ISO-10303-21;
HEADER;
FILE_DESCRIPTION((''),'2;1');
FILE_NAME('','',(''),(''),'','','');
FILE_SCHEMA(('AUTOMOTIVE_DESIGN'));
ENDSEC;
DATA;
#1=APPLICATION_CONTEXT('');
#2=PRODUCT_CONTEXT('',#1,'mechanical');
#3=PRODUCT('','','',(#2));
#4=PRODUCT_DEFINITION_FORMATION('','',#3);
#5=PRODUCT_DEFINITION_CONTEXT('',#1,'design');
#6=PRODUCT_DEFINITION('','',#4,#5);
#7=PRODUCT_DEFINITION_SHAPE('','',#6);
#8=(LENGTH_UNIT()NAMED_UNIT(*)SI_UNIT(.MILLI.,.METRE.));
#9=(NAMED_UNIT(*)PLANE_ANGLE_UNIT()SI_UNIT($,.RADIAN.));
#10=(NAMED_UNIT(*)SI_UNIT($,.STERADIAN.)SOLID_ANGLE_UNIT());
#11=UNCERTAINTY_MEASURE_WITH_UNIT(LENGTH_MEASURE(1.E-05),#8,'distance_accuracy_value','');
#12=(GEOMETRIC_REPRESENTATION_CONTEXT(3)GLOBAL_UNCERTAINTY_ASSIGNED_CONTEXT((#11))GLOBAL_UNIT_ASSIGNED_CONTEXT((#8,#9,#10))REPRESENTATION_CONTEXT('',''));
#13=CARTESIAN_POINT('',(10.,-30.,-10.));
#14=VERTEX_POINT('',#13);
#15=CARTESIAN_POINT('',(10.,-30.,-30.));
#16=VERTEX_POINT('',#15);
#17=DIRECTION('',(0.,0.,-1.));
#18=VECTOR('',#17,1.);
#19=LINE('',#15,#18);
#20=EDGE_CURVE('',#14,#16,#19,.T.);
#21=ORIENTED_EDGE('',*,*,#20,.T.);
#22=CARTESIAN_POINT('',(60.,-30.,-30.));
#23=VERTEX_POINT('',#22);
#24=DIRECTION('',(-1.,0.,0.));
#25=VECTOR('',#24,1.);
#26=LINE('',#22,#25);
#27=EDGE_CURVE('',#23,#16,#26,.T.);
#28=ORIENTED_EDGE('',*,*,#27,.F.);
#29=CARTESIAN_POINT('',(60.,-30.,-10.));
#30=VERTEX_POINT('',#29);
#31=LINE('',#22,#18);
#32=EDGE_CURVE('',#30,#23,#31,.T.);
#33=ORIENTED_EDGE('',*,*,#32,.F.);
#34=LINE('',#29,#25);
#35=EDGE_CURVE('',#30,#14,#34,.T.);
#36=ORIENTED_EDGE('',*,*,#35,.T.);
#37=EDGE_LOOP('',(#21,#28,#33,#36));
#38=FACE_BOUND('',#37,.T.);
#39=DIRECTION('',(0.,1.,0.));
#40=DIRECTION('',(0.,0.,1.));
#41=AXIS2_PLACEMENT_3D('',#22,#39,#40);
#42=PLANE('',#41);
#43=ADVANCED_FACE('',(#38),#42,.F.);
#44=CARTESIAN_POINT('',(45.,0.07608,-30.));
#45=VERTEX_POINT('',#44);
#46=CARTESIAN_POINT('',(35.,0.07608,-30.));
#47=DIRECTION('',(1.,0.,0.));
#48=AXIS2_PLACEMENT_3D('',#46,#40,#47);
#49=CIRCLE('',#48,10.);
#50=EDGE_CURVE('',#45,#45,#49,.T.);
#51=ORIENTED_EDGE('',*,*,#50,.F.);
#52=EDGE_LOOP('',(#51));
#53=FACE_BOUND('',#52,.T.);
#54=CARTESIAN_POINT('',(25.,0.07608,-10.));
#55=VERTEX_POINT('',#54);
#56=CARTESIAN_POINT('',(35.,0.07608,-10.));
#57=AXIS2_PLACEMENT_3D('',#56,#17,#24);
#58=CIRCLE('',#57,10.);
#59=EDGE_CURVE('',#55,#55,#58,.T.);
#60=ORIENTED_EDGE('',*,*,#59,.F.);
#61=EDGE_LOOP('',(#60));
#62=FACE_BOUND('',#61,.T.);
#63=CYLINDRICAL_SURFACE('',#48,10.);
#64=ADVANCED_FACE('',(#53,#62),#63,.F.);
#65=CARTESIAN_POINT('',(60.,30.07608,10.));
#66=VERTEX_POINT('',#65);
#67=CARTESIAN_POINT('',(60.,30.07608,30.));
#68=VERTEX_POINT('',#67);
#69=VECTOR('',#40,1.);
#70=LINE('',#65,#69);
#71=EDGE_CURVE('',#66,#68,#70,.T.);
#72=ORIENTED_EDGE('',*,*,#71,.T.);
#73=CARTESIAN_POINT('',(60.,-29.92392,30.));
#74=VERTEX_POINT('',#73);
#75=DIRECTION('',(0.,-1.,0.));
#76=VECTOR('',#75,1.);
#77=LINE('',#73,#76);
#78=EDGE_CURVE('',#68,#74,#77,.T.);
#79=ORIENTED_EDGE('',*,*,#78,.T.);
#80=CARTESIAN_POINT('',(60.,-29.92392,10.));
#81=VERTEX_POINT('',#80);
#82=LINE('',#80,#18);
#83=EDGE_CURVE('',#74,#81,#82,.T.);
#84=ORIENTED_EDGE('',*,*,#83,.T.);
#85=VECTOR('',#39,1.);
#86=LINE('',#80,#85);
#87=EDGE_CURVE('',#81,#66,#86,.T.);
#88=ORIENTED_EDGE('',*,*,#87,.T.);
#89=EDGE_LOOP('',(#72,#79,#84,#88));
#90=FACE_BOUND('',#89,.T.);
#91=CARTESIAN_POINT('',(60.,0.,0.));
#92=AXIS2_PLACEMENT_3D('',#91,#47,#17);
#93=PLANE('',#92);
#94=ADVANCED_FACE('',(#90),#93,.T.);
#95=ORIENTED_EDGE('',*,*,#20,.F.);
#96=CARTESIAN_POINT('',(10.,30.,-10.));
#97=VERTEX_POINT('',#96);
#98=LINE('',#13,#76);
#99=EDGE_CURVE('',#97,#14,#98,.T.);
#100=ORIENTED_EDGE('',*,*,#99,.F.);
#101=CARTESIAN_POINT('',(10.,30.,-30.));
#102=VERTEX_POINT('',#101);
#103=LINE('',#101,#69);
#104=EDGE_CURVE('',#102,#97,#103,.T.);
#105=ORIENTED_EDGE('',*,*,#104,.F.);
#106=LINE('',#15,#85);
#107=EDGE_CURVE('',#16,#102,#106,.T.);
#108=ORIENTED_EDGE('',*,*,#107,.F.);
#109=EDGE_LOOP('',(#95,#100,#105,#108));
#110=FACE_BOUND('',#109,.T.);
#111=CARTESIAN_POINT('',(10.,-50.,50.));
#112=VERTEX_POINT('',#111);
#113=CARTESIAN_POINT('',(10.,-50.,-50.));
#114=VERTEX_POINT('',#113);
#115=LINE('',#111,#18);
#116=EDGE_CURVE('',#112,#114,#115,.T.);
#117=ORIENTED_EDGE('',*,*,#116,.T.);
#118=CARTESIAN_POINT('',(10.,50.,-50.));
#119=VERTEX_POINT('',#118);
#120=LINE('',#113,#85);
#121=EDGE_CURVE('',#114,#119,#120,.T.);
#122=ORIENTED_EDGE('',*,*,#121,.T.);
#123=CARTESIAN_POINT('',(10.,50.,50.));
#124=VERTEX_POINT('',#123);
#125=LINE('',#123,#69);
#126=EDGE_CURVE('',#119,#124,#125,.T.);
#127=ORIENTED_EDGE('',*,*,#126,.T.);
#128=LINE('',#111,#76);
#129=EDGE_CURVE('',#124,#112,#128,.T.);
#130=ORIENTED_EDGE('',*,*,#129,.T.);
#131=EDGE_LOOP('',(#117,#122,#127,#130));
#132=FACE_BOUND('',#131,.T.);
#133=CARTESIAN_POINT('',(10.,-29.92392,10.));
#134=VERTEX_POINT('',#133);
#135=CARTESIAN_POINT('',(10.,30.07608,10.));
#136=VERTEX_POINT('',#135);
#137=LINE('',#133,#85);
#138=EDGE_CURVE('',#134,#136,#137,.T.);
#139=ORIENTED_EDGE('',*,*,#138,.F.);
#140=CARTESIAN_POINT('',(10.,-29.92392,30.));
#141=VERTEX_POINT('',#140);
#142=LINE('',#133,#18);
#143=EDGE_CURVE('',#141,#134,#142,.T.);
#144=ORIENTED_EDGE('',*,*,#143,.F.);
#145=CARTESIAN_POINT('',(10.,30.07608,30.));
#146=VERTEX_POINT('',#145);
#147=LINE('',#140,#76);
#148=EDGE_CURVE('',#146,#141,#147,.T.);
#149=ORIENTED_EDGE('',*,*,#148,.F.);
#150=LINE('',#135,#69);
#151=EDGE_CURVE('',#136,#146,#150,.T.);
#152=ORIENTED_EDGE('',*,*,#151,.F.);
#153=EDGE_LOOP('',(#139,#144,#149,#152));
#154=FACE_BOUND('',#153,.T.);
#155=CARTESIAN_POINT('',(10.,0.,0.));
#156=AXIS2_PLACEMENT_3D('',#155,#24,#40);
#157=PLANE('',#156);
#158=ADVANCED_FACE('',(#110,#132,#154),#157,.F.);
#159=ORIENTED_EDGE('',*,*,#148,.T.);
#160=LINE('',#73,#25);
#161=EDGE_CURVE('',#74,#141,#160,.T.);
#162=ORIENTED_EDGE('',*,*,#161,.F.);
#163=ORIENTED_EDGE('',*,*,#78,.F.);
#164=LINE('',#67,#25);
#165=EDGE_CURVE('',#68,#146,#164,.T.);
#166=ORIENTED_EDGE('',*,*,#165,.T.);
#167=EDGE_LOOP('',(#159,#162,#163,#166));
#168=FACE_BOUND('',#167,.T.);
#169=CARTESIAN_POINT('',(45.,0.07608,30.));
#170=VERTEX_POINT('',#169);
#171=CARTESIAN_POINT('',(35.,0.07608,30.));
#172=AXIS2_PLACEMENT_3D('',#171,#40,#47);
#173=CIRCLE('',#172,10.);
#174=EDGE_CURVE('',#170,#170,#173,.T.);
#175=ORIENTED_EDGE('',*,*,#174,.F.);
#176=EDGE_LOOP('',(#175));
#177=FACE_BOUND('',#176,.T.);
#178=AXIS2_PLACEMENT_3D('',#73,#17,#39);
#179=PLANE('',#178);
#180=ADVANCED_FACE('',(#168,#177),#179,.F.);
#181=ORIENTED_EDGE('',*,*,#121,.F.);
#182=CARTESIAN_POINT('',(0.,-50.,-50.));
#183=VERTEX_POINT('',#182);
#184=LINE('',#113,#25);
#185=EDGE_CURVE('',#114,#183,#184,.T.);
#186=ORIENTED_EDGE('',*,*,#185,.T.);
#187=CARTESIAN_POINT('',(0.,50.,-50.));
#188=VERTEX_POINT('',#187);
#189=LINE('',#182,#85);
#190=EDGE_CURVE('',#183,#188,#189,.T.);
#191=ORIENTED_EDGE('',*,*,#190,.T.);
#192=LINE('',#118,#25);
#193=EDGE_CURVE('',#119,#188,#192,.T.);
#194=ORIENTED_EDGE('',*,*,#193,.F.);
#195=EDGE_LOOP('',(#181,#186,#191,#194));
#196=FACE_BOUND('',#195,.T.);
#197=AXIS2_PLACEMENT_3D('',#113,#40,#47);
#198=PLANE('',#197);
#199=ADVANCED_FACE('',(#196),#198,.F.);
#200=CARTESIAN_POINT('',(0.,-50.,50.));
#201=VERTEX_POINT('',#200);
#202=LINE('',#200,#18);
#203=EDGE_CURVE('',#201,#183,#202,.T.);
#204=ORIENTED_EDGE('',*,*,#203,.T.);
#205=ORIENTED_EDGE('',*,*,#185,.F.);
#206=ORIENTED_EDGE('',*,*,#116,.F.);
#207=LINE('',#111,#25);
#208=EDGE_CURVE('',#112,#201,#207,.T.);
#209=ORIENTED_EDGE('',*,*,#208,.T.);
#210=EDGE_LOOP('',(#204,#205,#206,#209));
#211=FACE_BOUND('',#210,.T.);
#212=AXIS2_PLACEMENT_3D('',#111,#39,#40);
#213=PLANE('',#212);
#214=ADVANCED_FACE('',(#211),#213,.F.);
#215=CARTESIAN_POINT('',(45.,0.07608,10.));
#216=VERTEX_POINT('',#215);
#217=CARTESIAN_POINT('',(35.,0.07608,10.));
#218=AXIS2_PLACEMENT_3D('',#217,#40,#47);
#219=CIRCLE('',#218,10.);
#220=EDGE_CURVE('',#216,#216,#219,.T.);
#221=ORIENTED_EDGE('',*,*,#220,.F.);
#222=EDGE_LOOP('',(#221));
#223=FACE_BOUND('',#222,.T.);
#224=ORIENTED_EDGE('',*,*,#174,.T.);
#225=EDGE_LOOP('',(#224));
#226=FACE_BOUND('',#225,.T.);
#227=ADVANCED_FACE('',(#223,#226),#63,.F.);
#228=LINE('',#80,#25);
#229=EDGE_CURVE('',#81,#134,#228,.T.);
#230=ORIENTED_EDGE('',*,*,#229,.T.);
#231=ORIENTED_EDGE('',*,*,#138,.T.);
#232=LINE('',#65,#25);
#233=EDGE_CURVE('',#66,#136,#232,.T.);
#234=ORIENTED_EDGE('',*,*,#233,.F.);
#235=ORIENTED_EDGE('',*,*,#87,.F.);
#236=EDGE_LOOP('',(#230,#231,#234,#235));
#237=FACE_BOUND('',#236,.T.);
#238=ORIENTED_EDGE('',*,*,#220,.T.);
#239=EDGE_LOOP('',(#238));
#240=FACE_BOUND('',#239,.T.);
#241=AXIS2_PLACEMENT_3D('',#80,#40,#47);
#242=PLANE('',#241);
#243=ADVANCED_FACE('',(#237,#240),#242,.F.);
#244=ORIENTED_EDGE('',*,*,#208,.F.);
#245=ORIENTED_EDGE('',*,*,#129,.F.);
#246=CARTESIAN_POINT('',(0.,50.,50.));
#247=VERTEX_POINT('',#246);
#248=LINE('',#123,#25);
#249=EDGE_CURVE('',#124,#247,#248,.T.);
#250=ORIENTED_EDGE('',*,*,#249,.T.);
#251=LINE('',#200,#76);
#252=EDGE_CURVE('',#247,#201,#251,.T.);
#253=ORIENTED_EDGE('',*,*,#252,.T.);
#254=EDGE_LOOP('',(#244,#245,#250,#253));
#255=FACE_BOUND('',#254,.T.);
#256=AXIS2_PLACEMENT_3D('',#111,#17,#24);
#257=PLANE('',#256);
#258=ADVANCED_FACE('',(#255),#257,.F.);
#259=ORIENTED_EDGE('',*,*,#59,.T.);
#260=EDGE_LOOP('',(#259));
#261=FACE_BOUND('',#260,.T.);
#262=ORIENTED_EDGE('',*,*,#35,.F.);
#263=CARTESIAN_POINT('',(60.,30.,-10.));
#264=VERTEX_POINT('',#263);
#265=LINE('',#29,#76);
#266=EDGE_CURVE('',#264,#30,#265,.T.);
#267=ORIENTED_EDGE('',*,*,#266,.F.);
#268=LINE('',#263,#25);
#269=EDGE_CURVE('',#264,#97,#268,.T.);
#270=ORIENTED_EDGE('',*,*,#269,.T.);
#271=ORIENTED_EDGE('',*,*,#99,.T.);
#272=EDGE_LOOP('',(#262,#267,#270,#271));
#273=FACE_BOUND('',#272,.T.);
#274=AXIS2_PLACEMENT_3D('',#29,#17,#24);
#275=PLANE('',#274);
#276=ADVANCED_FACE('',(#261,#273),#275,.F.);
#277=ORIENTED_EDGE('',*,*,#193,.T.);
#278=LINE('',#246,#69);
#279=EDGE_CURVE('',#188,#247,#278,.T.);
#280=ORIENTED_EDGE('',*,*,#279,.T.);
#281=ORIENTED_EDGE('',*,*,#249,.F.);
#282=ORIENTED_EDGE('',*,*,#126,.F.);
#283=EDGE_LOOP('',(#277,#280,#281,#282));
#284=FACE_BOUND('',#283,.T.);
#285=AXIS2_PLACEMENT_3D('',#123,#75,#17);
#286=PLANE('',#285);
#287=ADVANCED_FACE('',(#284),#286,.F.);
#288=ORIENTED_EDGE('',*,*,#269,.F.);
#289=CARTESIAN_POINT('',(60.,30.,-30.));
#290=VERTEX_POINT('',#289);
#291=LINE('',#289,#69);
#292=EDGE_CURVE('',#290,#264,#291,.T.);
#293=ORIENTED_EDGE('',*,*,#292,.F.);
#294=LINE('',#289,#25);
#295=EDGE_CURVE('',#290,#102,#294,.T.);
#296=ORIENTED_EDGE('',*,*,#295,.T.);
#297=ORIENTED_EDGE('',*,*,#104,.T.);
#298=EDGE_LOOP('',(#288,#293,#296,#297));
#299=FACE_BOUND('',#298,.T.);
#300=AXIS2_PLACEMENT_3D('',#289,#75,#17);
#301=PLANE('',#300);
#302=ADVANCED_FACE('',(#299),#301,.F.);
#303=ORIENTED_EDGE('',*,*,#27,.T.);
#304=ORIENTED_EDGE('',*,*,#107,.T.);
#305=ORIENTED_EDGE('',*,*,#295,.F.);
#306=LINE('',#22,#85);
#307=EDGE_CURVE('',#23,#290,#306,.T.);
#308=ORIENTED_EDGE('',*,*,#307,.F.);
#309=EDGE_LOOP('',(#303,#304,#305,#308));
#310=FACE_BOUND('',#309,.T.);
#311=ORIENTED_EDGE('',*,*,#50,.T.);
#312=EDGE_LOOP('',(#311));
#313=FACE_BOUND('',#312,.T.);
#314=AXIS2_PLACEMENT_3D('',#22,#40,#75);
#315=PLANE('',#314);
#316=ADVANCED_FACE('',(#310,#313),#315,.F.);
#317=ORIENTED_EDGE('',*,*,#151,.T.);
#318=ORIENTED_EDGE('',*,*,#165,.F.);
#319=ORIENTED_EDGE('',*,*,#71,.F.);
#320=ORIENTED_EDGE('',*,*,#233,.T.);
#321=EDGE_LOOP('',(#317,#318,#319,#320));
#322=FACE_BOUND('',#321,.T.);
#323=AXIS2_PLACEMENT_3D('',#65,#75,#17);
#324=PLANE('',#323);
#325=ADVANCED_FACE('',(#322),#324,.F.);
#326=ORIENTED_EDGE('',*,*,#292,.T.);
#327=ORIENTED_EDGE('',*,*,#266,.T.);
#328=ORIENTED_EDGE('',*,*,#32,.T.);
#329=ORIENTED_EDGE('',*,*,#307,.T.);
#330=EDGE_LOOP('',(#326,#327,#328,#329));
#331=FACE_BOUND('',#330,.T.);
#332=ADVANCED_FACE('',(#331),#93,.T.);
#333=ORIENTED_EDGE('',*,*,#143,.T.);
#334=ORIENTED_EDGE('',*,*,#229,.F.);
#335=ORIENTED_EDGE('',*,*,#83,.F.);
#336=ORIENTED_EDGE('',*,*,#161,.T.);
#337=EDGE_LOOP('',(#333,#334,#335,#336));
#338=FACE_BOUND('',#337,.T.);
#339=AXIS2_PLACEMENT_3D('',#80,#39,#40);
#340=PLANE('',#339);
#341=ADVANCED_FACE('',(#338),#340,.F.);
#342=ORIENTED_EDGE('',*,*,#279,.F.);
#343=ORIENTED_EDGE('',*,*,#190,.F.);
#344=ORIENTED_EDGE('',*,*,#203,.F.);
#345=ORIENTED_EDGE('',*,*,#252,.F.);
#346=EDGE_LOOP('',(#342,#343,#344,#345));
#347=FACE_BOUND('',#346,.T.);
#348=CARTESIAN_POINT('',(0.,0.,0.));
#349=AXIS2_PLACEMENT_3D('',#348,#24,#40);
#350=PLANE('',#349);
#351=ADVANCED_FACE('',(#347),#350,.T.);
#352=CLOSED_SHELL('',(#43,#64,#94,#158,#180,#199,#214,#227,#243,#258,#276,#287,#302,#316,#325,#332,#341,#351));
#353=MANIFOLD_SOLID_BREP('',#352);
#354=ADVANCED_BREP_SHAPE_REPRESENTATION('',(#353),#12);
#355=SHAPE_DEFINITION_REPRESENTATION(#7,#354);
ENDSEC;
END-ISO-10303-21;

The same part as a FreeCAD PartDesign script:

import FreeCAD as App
import Part
import Sketcher
from FreeCAD import Vector


def add_polygon(sketch, points):
    """Adds a closed chain of lines whose ends are joined by coincident constraints."""
    first, n = sketch.GeometryCount, len(points)
    for a, b in zip(points, points[1:] + points[:1]):
        sketch.addGeometry(Part.LineSegment(App.Vector(*a, 0), App.Vector(*b, 0)), False)
    for i in range(n):
        sketch.addConstraint(Sketcher.Constraint("Coincident", first + i, 2, first + (i + 1) % n, 1))

doc = App.newDocument("Part")
body = doc.addObject("PartDesign::Body", "Body")

# Sketch on YZ plane
sketch1 = body.newObject("Sketcher::SketchObject", "Sketch")
sketch1.AttachmentSupport = (doc.getObject("YZ_Plane"), [""])
sketch1.MapMode = "FlatFace"
add_polygon(sketch1, [(50, 50), (-50, 50), (-50, -50), (50, -50)])  # lines 0-3
sketch1.addConstraint(Sketcher.Constraint("Horizontal", 0))
sketch1.addConstraint(Sketcher.Constraint("Vertical", 1))
sketch1.addConstraint(Sketcher.Constraint("Horizontal", 2))
sketch1.addConstraint(Sketcher.Constraint("Vertical", 3))
sketch1.addConstraint(Sketcher.Constraint("Symmetric", 0, 2, 2, 2, -1, 1))
sketch1.addConstraint(Sketcher.Constraint("Equal", 2, 1))
sketch1.addConstraint(Sketcher.Constraint("DistanceX", 0, 2, 0, 1, 100.0))
pad1 = body.newObject("PartDesign::Pad", "Pad")
pad1.Profile = sketch1
pad1.Length = 10

# Sketch on YZ plane
sketch2 = body.newObject("Sketcher::SketchObject", "Sketch001")
sketch2.AttachmentSupport = (doc.getObject("YZ_Plane"), [""])
sketch2.MapMode = "FlatFace"
sketch2.AttachmentOffset = App.Placement(Vector(0, 0, 10), App.Rotation())
add_polygon(sketch2, [(30.07608, 30), (-29.92392, 30), (-29.92392, 10), (30.07608, 10)])  # lines 0-3
add_polygon(sketch2, [(30, -10), (-30, -10), (-30, -30), (30, -30)])  # lines 4-7
sketch2.addConstraint(Sketcher.Constraint("Horizontal", 0))
sketch2.addConstraint(Sketcher.Constraint("Vertical", 1))
sketch2.addConstraint(Sketcher.Constraint("Horizontal", 2))
sketch2.addConstraint(Sketcher.Constraint("Vertical", 3))
sketch2.addConstraint(Sketcher.Constraint("Horizontal", 4))
sketch2.addConstraint(Sketcher.Constraint("Vertical", 5))
sketch2.addConstraint(Sketcher.Constraint("Horizontal", 6))
sketch2.addConstraint(Sketcher.Constraint("Vertical", 7))
sketch2.addConstraint(Sketcher.Constraint("Equal", 2, 4))
sketch2.addConstraint(Sketcher.Constraint("Equal", 3, 5))
sketch2.addConstraint(Sketcher.Constraint("DistanceX", 0, 2, 0, 1, 60.0))
sketch2.addConstraint(Sketcher.Constraint("DistanceY", 1, 2, 1, 1, 20.0))
sketch2.addConstraint(Sketcher.Constraint("DistanceY", -1, 1, 0, 2, 30.0))
sketch2.addConstraint(Sketcher.Constraint("DistanceX", 4, 2, -1, 1, 30.0))
sketch2.addConstraint(Sketcher.Constraint("DistanceY", 4, 2, -1, 1, 10.0))
sketch2.addConstraint(Sketcher.Constraint("DistanceX", 0, 2, -1, 1, 29.92392))
pad2 = body.newObject("PartDesign::Pad", "Pad001")
pad2.Profile = sketch2
pad2.Length = 50

# Sketch on XY plane
sketch3 = body.newObject("Sketcher::SketchObject", "Sketch002")
sketch3.AttachmentSupport = (doc.getObject("XY_Plane"), [""])
sketch3.MapMode = "FlatFace"
sketch3.AttachmentOffset = App.Placement(Vector(0, 0, 30), App.Rotation())
sketch3.addGeometry(Part.Circle(Vector(35, 0.07608, 0), Vector(0, 0, 1), 10), False)
sketch3.addConstraint(Sketcher.Constraint("Diameter", 0, 20.0))
sketch3.addConstraint(Sketcher.Constraint("DistanceX", -1, 1, 0, 3, 35.0))
sketch3.addConstraint(Sketcher.Constraint("DistanceY", -1, 1, 0, 3, 0.07608))
pocket1 = body.newObject("PartDesign::Pocket", "Pocket")
pocket1.Profile = sketch3
pocket1.Length = 60

doc.recompute()
